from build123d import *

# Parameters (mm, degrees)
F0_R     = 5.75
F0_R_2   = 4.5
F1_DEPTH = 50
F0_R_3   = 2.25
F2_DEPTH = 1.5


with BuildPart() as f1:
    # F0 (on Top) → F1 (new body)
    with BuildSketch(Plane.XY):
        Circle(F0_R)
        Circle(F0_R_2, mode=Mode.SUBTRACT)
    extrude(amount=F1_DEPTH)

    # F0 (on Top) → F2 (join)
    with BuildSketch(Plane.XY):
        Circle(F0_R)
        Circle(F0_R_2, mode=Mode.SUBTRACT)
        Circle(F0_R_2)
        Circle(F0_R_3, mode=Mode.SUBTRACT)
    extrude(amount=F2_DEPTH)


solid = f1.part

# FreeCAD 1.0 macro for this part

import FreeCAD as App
import Part
import Sketcher
from FreeCAD import Vector

doc = App.newDocument("Part")
params = doc.addObject("Spreadsheet::Sheet", "Params")
for row, (alias, value) in enumerate([
    ("sketch1_diameter", "9 mm"),
    ("sketch1_diameter2", "11.5 mm"),
    ("pad1_length", "50 mm"),
    ("sketch2_diameter", "11.5 mm"),
    ("sketch2_diameter2", "4.5 mm"),
    ("pad2_length", "1.5 mm"),
], start=1):
    params.set(f"A{row}", alias)
    params.set(f"B{row}", "=" + value)
    params.setAlias(f"B{row}", alias)

body = doc.addObject("PartDesign::Body", "Body")

# Sketch on XY plane
sketch1 = body.newObject("Sketcher::SketchObject", "Sketch")
sketch1.AttachmentSupport = (doc.getObject("XY_Plane"), [""])
sketch1.MapMode = "FlatFace"
sketch1.addGeometry([
    Part.Circle(Vector(0, 0, 0), Vector(0, 0, 1), 5.75),
    Part.Circle(Vector(0, 0, 0), Vector(0, 0, 1), 4.5),
], False)
sketch1.addConstraint([
    Sketcher.Constraint("Coincident", 0, 3, -1, 1),
    Sketcher.Constraint("Coincident", 1, 3, -1, 1),
    Sketcher.Constraint("Diameter", 1, 9.0),
    Sketcher.Constraint("Diameter", 0, 11.5),
])
sketch1.setExpression("Constraints[2]", "Params.sketch1_diameter")
sketch1.setExpression("Constraints[3]", "Params.sketch1_diameter2")
pad1 = body.newObject("PartDesign::Pad", "Pad")
pad1.Profile = sketch1
pad1.setExpression("Length", "Params.pad1_length")

# Sketch on XY plane
sketch2 = body.newObject("Sketcher::SketchObject", "Sketch001")
sketch2.AttachmentSupport = (doc.getObject("XY_Plane"), [""])
sketch2.MapMode = "FlatFace"
sketch2.addGeometry([
    Part.Circle(Vector(0, 0, 0), Vector(0, 0, 1), 5.75),
    Part.Circle(Vector(0, 0, 0), Vector(0, 0, 1), 2.25),
], False)
sketch2.addConstraint([
    Sketcher.Constraint("Coincident", 0, 3, -1, 1),
    Sketcher.Constraint("Coincident", 1, 3, -1, 1),
    Sketcher.Constraint("Diameter", 0, 11.5),
    Sketcher.Constraint("Diameter", 1, 4.5),
])
sketch2.setExpression("Constraints[2]", "Params.sketch2_diameter")
sketch2.setExpression("Constraints[3]", "Params.sketch2_diameter2")
pad2 = body.newObject("PartDesign::Pad", "Pad001")
pad2.Profile = sketch2
pad2.setExpression("Length", "Params.pad2_length")

doc.recompute()
